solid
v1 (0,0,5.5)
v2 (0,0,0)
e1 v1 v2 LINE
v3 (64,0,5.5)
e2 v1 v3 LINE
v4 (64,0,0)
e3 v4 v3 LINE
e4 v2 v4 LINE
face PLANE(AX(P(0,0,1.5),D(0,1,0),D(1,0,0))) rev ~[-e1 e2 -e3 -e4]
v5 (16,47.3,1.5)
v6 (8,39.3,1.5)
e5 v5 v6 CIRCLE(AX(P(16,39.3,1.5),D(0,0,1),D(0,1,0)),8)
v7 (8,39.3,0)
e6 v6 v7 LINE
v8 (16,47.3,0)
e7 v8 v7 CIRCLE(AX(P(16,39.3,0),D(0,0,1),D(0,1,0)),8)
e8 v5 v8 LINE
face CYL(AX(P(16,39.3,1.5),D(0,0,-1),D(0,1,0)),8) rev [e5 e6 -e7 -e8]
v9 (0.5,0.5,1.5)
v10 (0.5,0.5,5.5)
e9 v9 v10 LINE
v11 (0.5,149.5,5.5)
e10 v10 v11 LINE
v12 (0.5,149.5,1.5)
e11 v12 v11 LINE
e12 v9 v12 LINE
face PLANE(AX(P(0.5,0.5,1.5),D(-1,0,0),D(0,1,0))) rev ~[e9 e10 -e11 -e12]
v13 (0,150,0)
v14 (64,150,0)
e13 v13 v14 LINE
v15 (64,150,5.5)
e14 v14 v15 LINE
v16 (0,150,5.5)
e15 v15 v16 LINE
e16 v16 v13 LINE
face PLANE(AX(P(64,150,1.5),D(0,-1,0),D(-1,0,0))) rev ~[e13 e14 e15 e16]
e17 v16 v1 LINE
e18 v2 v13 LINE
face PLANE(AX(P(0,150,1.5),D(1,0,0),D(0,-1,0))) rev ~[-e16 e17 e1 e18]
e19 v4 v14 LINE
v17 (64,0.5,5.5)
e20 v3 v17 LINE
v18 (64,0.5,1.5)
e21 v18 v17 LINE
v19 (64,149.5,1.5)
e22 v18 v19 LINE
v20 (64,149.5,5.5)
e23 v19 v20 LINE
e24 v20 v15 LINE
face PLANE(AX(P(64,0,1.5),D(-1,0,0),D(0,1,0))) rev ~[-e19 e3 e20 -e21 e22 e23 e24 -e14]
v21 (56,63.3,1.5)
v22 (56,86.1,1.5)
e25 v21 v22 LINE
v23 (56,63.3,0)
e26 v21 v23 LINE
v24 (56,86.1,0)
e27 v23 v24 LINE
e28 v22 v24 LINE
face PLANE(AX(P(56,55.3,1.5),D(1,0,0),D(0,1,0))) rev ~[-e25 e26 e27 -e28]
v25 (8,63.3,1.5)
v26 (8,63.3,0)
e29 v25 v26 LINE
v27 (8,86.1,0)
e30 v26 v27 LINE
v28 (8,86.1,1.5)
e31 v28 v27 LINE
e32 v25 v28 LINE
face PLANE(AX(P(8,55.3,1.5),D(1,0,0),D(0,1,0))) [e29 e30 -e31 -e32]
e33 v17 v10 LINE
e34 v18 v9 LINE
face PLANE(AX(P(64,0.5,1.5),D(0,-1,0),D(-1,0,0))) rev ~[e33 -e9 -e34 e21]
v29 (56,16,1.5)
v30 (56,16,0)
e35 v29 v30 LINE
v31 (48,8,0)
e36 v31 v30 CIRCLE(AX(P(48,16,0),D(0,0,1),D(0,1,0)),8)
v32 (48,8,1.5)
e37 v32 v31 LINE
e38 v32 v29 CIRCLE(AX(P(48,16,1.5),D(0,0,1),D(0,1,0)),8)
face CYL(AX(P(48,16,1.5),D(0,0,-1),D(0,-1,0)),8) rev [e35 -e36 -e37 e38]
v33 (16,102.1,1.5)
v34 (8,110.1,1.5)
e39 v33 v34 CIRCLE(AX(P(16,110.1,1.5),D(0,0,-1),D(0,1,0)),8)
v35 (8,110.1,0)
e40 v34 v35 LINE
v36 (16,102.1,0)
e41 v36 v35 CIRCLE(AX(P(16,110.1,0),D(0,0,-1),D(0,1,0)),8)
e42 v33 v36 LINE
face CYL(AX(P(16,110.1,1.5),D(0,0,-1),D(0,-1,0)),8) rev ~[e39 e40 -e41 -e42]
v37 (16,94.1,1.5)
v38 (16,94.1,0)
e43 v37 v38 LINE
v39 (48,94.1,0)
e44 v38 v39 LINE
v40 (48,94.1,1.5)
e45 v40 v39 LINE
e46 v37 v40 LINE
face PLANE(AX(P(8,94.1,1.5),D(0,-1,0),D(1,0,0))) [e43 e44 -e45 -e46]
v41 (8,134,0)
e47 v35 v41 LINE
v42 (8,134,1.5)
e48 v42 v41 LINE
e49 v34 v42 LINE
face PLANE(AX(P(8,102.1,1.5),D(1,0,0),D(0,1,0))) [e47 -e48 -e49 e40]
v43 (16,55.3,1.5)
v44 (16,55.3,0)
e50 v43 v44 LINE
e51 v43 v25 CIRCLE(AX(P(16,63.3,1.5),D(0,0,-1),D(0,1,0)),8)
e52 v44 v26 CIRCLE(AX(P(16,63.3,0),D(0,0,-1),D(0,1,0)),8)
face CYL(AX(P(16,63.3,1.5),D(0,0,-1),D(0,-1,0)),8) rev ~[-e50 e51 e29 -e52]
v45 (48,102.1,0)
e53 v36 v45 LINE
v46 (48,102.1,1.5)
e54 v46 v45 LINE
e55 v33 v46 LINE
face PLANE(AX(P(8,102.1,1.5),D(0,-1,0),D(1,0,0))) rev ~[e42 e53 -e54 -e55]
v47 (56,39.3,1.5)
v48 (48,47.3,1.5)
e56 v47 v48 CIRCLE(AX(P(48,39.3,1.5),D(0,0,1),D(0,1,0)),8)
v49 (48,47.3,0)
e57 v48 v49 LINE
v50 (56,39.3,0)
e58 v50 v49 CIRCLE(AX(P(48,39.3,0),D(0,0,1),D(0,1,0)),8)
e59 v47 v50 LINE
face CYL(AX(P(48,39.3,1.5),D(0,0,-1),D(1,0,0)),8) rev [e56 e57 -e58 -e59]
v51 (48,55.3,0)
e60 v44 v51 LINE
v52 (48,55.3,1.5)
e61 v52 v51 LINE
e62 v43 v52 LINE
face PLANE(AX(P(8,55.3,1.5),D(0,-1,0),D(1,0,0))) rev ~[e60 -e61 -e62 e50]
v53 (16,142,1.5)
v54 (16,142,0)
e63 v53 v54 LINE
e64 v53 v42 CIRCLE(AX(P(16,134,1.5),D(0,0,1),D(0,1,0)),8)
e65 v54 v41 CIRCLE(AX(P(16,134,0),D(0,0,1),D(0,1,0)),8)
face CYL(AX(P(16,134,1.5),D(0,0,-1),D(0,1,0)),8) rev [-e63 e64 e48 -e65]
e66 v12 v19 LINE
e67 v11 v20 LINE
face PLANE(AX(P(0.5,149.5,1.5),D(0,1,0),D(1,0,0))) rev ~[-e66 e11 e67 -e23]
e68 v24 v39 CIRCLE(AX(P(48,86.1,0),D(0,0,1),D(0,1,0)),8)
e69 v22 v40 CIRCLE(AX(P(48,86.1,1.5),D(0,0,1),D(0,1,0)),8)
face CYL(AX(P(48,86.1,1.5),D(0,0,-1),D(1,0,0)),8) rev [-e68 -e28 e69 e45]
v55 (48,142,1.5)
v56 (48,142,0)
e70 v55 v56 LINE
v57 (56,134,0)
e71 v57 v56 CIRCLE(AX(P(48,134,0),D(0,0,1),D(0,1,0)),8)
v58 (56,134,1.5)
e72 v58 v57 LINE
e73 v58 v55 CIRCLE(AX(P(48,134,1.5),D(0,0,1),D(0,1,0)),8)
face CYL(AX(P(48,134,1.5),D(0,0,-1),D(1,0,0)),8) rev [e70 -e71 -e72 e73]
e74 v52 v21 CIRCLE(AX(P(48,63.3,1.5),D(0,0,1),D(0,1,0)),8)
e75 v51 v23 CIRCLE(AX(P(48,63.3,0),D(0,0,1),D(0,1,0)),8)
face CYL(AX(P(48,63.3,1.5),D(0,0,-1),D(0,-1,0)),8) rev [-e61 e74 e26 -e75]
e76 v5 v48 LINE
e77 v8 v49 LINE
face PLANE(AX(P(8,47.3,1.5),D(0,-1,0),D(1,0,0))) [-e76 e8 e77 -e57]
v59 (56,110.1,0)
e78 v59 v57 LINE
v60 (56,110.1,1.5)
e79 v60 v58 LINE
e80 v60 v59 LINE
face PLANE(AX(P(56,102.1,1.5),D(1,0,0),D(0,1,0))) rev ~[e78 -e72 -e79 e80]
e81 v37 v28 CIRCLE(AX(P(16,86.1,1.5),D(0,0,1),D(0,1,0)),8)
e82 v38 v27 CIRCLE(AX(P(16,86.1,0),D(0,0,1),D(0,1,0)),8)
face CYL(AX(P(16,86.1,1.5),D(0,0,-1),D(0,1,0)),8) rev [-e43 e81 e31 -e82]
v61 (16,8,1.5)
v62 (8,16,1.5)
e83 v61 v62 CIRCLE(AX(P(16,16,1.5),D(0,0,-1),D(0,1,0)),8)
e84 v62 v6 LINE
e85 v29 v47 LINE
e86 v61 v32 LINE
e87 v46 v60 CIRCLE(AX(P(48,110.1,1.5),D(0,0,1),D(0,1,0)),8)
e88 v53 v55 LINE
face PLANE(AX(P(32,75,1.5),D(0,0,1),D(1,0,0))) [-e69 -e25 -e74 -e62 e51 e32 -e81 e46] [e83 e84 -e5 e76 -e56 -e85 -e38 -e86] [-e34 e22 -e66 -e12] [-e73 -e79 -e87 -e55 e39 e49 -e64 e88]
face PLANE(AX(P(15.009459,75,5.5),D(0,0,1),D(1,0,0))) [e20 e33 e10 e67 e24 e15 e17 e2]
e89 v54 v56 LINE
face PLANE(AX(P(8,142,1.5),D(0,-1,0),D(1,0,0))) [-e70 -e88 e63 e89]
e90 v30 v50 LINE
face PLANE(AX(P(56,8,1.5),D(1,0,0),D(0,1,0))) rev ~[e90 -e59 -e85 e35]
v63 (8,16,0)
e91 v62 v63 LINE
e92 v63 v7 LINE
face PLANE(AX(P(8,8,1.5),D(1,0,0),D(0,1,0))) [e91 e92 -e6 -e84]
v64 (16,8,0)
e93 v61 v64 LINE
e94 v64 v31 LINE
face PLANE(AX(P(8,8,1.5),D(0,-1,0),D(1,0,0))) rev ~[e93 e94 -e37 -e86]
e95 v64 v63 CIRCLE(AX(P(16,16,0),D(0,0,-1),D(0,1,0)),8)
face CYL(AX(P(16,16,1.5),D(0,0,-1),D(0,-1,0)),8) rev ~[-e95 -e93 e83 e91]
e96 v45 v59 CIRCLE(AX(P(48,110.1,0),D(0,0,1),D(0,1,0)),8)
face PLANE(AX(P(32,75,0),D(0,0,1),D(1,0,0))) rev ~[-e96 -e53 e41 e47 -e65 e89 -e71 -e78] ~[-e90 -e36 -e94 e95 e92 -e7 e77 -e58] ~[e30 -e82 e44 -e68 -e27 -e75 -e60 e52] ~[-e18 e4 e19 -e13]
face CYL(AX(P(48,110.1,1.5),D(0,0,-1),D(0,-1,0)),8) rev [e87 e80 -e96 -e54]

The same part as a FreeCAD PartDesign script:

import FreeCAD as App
import Part
import Sketcher

V = App.Vector


def edges_at(feature, points):
    """Names of the edges that pass closest to the given points."""
    edges = feature.Shape.Edges
    near = lambda p: min(range(len(edges)), key=lambda i: edges[i].distToShape(Part.Vertex(*p))[0])
    return sorted({f"Edge{near(p) + 1}" for p in points})

doc = App.newDocument("Part")
body = doc.addObject("PartDesign::Body", "Body")

# Sketch on XY plane
sketch1 = doc.addObject("Sketcher::SketchObject", "Sketch")
body.addObject(sketch1)
sketch1.AttachmentSupport = (doc.XY_Plane, [""])
sketch1.MapMode = "FlatFace"
sketch1.addGeometry([
    Part.LineSegment(V(0, 150, 0), V(0, 0, 0)),
    Part.LineSegment(V(0, 0, 0), V(64, 0, 0)),
    Part.LineSegment(V(64, 0, 0), V(64, 150, 0)),
    Part.LineSegment(V(64, 150, 0), V(0, 150, 0)),
], False)
sketch1.addConstraint([
    Sketcher.Constraint("Coincident", 0, 2, 1, 1),
    Sketcher.Constraint("Coincident", 1, 2, 2, 1),
    Sketcher.Constraint("Coincident", 2, 2, 3, 1),
    Sketcher.Constraint("Coincident", 3, 2, 0, 1),
    Sketcher.Constraint("Vertical", 0),
    Sketcher.Constraint("Horizontal", 1),
    Sketcher.Constraint("Vertical", 2),
    Sketcher.Constraint("Horizontal", 3),
    Sketcher.Constraint("Coincident", 0, 2, -1, 1),
    Sketcher.Constraint("DistanceX", 1, 1, 1, 2, 64.0),
    Sketcher.Constraint("DistanceY", 0, 2, 0, 1, 150.0),
])
pad1 = doc.addObject("PartDesign::Pad", "Pad")
body.addObject(pad1)
pad1.Profile = sketch1
pad1.Length = 1.5

# Sketch on XY plane
sketch2 = doc.addObject("Sketcher::SketchObject", "Sketch001")
body.addObject(sketch2)
sketch2.AttachmentSupport = (doc.XY_Plane, [""])
sketch2.MapMode = "FlatFace"
sketch2.AttachmentOffset = App.Placement(V(0, 0, 1.5), App.Rotation())
sketch2.addGeometry([
    Part.LineSegment(V(8, 142, 0), V(8, 102, 0)),  # 0
    Part.LineSegment(V(8, 102, 0), V(56, 102, 0)),  # 1
    Part.LineSegment(V(56, 102, 0), V(56, 142, 0)),  # 2
    Part.LineSegment(V(56, 142, 0), V(8, 142, 0)),  # 3
    Part.LineSegment(V(8, 94, 0), V(8, 55, 0)),  # 4
    Part.LineSegment(V(8, 55, 0), V(56, 55, 0)),  # 5
    Part.LineSegment(V(56, 55, 0), V(56, 94, 0)),  # 6
    Part.LineSegment(V(56, 94, 0), V(8, 94, 0)),  # 7
    Part.LineSegment(V(8, 47, 0), V(8, 8, 0)),  # 8
    Part.LineSegment(V(8, 8, 0), V(56, 8, 0)),  # 9
    Part.LineSegment(V(56, 8, 0), V(56, 47, 0)),  # 10
    Part.LineSegment(V(56, 47, 0), V(8, 47, 0)),  # 11
], False)
sketch2.addConstraint([
    Sketcher.Constraint("Coincident", 0, 2, 1, 1),
    Sketcher.Constraint("Coincident", 1, 2, 2, 1),
    Sketcher.Constraint("Coincident", 2, 2, 3, 1),
    Sketcher.Constraint("Coincident", 3, 2, 0, 1),
    Sketcher.Constraint("Coincident", 4, 2, 5, 1),
    Sketcher.Constraint("Coincident", 5, 2, 6, 1),
    Sketcher.Constraint("Coincident", 6, 2, 7, 1),
    Sketcher.Constraint("Coincident", 7, 2, 4, 1),
    Sketcher.Constraint("Coincident", 8, 2, 9, 1),
    Sketcher.Constraint("Coincident", 9, 2, 10, 1),
    Sketcher.Constraint("Coincident", 10, 2, 11, 1),
    Sketcher.Constraint("Coincident", 11, 2, 8, 1),
    Sketcher.Constraint("Vertical", 0),
    Sketcher.Constraint("Horizontal", 1),
    Sketcher.Constraint("Vertical", 2),
    Sketcher.Constraint("Horizontal", 3),
    Sketcher.Constraint("Vertical", 4),
    Sketcher.Constraint("Horizontal", 5),
    Sketcher.Constraint("Vertical", 6),
    Sketcher.Constraint("Horizontal", 7),
    Sketcher.Constraint("Vertical", 8),
    Sketcher.Constraint("Horizontal", 9),
    Sketcher.Constraint("Vertical", 10),
    Sketcher.Constraint("Horizontal", 11),
    Sketcher.Constraint("Vertical", 3, 2, 4, 2),
    Sketcher.Constraint("Vertical", 2, 2, 5, 2),
    Sketcher.Constraint("Vertical", 7, 2, 8, 2),
    Sketcher.Constraint("Vertical", 6, 2, 9, 2),
    Sketcher.Constraint("DistanceX", 1, 1, 1, 2, 48.0),
    Sketcher.Constraint("DistanceY", 0, 2, 0, 1, 39.9),
    Sketcher.Constraint("DistanceY", 4, 2, 4, 1, 38.8),
    Sketcher.Constraint("DistanceY", 8, 2, 8, 1, 39.3),
    Sketcher.Constraint("DistanceX", -1, 1, 0, 2, 8.0),
    Sketcher.Constraint("DistanceY", -1, 1, 2, 2, 142.0),
    Sketcher.Constraint("DistanceY", -1, 1, 8, 2, 8.0),
    Sketcher.Constraint("DistanceY", 6, 2, 1, 2, 8.0),
])
pocket1 = doc.addObject("PartDesign::Pocket", "Pocket")
body.addObject(pocket1)
pocket1.Profile = sketch2
pocket1.Type = "ThroughAll"
doc.recompute()

fillet = doc.addObject("PartDesign::Fillet", "Fillet")
body.addObject(fillet)
fillet.Base = (pocket1, edges_at(pocket1, [
    (8, 142, 0.75),
    (8, 94.1, 0.75),
    (8, 47.3, 0.75),
    (8, 102.1, 0.75),
    (8, 55.3, 0.75),
    (8, 8, 0.75),
    (56, 102.1, 0.75),
    (56, 55.3, 0.75),
    (56, 8, 0.75),
    (56, 142, 0.75),
    (56, 94.1, 0.75),
    (56, 47.3, 0.75),
]))
fillet.Radius = 8

# Sketch on XY plane
sketch3 = doc.addObject("Sketcher::SketchObject", "Sketch002")
body.addObject(sketch3)
sketch3.AttachmentSupport = (doc.XY_Plane, [""])
sketch3.MapMode = "FlatFace"
sketch3.AttachmentOffset = App.Placement(V(0, 0, 1.5), App.Rotation())
sketch3.addGeometry([
    Part.LineSegment(V(0, 0, 0), V(64, 0, 0)),  # 0
    Part.LineSegment(V(64, 0, 0), V(64, 0.5, 0)),  # 1
    Part.LineSegment(V(64, 0.5, 0), V(0.5, 0.5, 0)),  # 2
    Part.LineSegment(V(0.5, 0.5, 0), V(0.5, 149.5, 0)),  # 3
    Part.LineSegment(V(0.5, 149.5, 0), V(64, 149.5, 0)),  # 4
    Part.LineSegment(V(64, 149.5, 0), V(64, 150, 0)),  # 5
    Part.LineSegment(V(64, 150, 0), V(0, 150, 0)),  # 6
    Part.LineSegment(V(0, 150, 0), V(0, 0, 0)),  # 7
], False)
sketch3.addConstraint([
    Sketcher.Constraint("Coincident", 0, 2, 1, 1),
    Sketcher.Constraint("Coincident", 1, 2, 2, 1),
    Sketcher.Constraint("Coincident", 2, 2, 3, 1),
    Sketcher.Constraint("Coincident", 3, 2, 4, 1),
    Sketcher.Constraint("Coincident", 4, 2, 5, 1),
    Sketcher.Constraint("Coincident", 5, 2, 6, 1),
    Sketcher.Constraint("Coincident", 6, 2, 7, 1),
    Sketcher.Constraint("Coincident", 7, 2, 0, 1),
    Sketcher.Constraint("Horizontal", 0),
    Sketcher.Constraint("Vertical", 1),
    Sketcher.Constraint("Horizontal", 2),
    Sketcher.Constraint("Vertical", 3),
    Sketcher.Constraint("Horizontal", 4),
    Sketcher.Constraint("Vertical", 5),
    Sketcher.Constraint("Horizontal", 6),
    Sketcher.Constraint("Vertical", 7),
    Sketcher.Constraint("Coincident", 7, 2, -1, 1),
    Sketcher.Constraint("Vertical", 1, 2, 4, 2),
    Sketcher.Constraint("Equal", 1, 5),
    Sketcher.Constraint("DistanceX", 0, 1, 0, 2, 64.0),
    Sketcher.Constraint("DistanceY", 3, 1, 3, 2, 149.0),
    Sketcher.Constraint("DistanceY", 7, 2, 7, 1, 150.0),
    Sketcher.Constraint("DistanceX", 2, 2, 2, 1, 63.5),
])
pad2 = doc.addObject("PartDesign::Pad", "Pad001")
body.addObject(pad2)
pad2.Profile = sketch3
pad2.Length = 4

doc.recompute()
